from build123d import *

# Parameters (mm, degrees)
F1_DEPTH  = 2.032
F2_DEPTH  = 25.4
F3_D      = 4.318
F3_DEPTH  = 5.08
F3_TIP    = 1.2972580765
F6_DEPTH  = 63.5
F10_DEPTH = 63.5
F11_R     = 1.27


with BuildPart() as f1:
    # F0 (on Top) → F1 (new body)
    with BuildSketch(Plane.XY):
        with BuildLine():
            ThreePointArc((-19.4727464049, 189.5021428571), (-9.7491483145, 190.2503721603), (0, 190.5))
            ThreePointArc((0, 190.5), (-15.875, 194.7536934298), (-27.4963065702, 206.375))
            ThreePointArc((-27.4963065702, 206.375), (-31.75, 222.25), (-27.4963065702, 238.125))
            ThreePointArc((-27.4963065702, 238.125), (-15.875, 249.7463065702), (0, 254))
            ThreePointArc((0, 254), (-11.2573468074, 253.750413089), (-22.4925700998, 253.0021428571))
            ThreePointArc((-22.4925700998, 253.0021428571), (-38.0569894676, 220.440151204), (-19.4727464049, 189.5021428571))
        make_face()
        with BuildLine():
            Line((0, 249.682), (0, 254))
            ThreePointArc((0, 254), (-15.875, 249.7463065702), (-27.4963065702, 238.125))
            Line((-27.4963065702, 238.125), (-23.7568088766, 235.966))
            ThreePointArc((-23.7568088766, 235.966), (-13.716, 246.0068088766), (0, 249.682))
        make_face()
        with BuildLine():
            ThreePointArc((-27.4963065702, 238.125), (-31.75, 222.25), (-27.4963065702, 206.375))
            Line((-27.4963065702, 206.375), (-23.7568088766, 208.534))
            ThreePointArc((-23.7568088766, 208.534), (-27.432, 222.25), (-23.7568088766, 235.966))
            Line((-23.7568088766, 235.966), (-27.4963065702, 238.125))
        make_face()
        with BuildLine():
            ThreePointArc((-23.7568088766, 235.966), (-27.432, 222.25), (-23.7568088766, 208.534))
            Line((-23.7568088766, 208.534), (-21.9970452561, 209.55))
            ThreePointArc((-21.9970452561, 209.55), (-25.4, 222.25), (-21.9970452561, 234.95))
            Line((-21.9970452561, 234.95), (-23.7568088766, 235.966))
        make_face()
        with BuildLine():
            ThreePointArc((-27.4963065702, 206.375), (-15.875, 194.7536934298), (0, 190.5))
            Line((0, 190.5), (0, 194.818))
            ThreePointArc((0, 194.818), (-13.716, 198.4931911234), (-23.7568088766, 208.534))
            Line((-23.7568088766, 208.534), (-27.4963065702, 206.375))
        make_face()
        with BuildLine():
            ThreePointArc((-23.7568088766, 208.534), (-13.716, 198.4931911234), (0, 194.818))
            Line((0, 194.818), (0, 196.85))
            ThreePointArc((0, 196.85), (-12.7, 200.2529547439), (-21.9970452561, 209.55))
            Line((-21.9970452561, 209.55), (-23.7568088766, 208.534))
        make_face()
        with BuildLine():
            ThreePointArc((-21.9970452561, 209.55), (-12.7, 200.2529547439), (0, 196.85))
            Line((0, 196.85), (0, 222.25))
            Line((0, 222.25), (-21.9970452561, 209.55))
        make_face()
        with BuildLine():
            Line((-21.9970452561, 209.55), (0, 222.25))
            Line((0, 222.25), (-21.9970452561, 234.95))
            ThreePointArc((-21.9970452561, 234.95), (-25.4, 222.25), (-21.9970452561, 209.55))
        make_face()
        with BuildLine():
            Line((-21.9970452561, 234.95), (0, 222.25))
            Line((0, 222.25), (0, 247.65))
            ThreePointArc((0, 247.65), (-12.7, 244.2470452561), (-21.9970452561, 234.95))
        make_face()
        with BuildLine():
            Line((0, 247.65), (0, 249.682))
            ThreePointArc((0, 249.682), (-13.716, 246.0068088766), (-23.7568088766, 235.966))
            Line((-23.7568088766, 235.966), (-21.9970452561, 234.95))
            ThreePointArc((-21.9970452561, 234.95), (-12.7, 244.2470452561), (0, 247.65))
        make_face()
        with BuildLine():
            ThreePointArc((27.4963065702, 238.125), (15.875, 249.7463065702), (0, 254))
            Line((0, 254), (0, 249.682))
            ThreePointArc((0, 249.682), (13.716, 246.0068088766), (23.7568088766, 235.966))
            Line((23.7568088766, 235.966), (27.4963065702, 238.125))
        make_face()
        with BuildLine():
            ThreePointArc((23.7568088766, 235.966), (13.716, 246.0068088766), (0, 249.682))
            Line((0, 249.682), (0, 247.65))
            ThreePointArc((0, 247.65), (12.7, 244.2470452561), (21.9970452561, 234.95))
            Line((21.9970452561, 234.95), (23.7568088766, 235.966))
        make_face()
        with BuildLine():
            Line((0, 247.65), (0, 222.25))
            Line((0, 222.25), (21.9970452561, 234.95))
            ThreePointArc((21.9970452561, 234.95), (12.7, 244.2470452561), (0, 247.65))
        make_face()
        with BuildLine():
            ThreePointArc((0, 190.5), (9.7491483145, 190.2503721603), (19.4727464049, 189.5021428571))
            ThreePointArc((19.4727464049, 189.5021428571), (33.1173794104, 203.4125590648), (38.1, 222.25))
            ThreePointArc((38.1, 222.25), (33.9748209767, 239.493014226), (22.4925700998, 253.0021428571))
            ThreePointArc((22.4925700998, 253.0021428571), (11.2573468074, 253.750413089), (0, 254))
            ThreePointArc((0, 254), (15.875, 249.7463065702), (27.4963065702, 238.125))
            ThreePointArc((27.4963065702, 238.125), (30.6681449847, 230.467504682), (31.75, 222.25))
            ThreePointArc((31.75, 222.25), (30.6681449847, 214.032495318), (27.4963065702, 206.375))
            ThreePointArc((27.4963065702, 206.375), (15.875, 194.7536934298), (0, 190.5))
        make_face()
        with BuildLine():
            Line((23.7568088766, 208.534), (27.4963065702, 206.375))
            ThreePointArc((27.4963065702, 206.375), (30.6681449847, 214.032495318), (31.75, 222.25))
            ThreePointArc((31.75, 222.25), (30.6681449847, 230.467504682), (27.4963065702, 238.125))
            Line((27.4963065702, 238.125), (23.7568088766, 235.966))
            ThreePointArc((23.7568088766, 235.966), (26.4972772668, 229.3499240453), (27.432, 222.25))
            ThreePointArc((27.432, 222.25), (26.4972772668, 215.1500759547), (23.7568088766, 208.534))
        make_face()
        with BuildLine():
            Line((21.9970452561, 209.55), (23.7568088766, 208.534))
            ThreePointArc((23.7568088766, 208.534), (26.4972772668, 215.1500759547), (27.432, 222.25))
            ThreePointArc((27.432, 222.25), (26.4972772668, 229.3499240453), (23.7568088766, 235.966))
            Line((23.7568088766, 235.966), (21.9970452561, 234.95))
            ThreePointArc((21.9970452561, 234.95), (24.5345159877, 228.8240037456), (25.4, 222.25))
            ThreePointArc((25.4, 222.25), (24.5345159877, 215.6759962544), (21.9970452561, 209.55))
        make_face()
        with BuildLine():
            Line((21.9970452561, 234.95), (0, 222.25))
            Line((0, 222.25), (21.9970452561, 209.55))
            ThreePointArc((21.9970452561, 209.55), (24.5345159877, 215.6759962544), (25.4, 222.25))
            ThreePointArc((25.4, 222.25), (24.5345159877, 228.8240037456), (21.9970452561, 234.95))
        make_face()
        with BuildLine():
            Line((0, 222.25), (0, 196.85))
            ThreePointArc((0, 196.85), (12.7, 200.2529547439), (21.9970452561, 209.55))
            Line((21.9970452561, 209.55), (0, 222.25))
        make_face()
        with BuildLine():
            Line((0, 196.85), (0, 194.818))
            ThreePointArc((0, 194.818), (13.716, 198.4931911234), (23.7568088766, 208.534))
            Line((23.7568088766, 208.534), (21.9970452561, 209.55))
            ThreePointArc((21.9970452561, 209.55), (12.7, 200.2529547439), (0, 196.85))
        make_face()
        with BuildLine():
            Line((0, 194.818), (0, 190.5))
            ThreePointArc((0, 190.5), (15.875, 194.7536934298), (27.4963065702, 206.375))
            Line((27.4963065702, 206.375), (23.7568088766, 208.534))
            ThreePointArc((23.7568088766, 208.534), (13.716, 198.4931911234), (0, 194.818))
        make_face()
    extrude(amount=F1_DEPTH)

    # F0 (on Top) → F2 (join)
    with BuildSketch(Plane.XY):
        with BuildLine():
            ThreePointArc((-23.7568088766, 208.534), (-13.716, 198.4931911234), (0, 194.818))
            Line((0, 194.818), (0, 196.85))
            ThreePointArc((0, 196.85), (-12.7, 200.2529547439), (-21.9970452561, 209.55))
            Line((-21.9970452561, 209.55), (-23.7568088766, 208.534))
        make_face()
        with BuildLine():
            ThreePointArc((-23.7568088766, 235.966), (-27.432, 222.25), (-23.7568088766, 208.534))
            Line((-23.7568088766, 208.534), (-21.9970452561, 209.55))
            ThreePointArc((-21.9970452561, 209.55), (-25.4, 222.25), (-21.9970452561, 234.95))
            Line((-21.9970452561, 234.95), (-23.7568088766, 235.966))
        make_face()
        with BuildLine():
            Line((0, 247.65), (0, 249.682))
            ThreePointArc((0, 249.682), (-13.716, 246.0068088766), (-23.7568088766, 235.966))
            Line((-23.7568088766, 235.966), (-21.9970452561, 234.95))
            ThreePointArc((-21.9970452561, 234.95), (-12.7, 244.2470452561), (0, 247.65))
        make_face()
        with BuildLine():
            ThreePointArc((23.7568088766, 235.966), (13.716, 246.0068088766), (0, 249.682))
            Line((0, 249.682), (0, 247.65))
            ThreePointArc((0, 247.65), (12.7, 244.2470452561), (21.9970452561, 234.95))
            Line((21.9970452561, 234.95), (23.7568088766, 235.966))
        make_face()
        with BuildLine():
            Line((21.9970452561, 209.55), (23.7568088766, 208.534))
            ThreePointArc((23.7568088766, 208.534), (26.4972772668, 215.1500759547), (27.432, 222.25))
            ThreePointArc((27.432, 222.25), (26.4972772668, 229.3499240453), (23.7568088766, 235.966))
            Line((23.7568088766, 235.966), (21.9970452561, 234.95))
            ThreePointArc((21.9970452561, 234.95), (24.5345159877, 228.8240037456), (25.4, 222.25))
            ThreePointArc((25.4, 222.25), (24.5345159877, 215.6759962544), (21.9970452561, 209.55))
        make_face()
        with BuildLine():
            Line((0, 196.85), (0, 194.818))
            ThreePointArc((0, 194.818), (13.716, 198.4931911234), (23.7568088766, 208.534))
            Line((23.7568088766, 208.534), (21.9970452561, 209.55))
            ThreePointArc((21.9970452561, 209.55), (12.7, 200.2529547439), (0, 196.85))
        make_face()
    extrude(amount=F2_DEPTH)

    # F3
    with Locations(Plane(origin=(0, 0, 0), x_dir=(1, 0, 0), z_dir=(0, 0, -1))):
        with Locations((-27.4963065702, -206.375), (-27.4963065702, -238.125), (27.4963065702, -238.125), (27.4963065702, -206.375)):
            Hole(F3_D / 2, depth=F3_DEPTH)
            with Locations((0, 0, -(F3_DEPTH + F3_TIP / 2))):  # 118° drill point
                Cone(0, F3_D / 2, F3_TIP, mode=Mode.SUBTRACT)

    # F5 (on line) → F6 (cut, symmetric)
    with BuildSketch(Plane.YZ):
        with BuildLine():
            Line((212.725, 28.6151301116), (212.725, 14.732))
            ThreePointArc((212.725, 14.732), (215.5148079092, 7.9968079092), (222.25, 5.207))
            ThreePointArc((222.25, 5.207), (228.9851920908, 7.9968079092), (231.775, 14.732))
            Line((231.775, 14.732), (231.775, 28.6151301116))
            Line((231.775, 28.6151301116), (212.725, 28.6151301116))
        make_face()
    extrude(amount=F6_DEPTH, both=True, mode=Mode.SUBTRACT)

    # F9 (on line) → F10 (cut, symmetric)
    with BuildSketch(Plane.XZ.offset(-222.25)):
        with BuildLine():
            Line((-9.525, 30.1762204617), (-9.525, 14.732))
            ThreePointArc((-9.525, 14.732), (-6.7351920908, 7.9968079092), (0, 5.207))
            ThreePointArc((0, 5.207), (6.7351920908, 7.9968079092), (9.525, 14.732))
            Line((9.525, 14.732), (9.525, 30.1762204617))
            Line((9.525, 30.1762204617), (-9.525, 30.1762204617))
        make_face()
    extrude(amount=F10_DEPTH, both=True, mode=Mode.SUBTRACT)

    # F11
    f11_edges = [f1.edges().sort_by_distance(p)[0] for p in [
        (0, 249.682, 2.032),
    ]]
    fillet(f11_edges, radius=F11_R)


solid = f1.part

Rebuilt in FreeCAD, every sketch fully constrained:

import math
import FreeCAD as App
import Part
import Sketcher

V = App.Vector
Q = App.Units.Quantity


def edges_at(feature, points):
    """Names of the edges that pass closest to the given points."""
    edges = feature.Shape.Edges
    near = lambda p: min(range(len(edges)), key=lambda i: edges[i].distToShape(Part.Vertex(*p))[0])
    return sorted({f"Edge{near(p) + 1}" for p in points})

doc = App.newDocument("Part")
body = doc.addObject("PartDesign::Body", "Body")

sketch1 = body.newObject("Sketcher::SketchObject", "Sketch")
sketch1.AttachmentSupport = (doc.getObject("XY_Plane"), [""])
sketch1.MapMode = "FlatFace"
sketch1.addGeometry([
    Part.ArcOfCircle(Part.Circle(V(0, 0, 0), V(0, 0, 1), 190.5), math.radians(90), math.radians(95.866973)),
    Part.ArcOfCircle(Part.Circle(V(0, 0, 0), V(0, 0, 1), 190.5), math.radians(84.133027), math.radians(90)),
    Part.ArcOfCircle(Part.Circle(V(0, 222.25, 0), V(0, 0, 1), 38.1), math.radians(-59.263158), math.radians(0)),
    Part.ArcOfCircle(Part.Circle(V(0, 222.25, 0), V(0, 0, 1), 38.1), math.radians(0), math.radians(53.817713)),
    Part.ArcOfCircle(Part.Circle(V(0, 0, 0), V(0, 0, 1), 254), math.radians(84.919608), math.radians(90)),
    Part.ArcOfCircle(Part.Circle(V(0, 0, 0), V(0, 0, 1), 254), math.radians(90), math.radians(95.080392)),
    Part.ArcOfCircle(Part.Circle(V(0, 222.25, 0), V(0, 0, 1), 38.1), math.radians(126.182287), math.radians(239.263158)),
], False)
sketch1.addConstraint([
    Sketcher.Constraint("Tangent", 0, 1, 1, 2),
    Sketcher.Constraint("Coincident", 1, 1, 2, 1),
    Sketcher.Constraint("Tangent", 2, 2, 3, 1),
    Sketcher.Constraint("Coincident", 3, 2, 4, 1),
    Sketcher.Constraint("Tangent", 4, 2, 5, 1),
    Sketcher.Constraint("Coincident", 5, 2, 6, 1),
    Sketcher.Constraint("Coincident", 6, 2, 0, 2),
    Sketcher.Constraint("Coincident", 0, 3, -1, 1),
    Sketcher.Constraint("Coincident", 4, 3, -1, 1),
    Sketcher.Constraint("Coincident", 6, 3, 2, 3),
    Sketcher.Constraint("Equal", 0, 1),
    Sketcher.Constraint("Equal", 2, 3),
    Sketcher.Constraint("Equal", 4, 5),
    Sketcher.Constraint("Equal", 3, 6),
    Sketcher.Constraint("PointOnObject", 2, 3, -2),
    Sketcher.Constraint("PointOnObject", 0, 1, -2),
    Sketcher.Constraint("PointOnObject", 4, 2, -2),
    Sketcher.Constraint("Horizontal", 6, 3, 2, 2),
    Sketcher.Constraint("Radius", 4, Q("10 in")),
    Sketcher.Constraint("Radius", 0, Q("7.5 in")),
    Sketcher.Constraint("Radius", 2, Q("1.5 in")),
    Sketcher.Constraint("DistanceY", 1, 1, 3, 2, Q("2.5 in")),
])
pad1 = body.newObject("PartDesign::Pad", "Pad")
pad1.Profile = sketch1
pad1.Length = Q("0.08 in")

sketch2 = body.newObject("Sketcher::SketchObject", "Sketch001")
sketch2.AttachmentSupport = (doc.getObject("XY_Plane"), [""])
sketch2.MapMode = "FlatFace"
sketch2.addGeometry([
    Part.ArcOfCircle(Part.Circle(V(0, 222.25, 0), V(0, 0, 1), 27.432), math.radians(-150), math.radians(-90)),
    Part.ArcOfCircle(Part.Circle(V(0, 222.25, 0), V(0, 0, 1), 27.432), math.radians(-90), math.radians(-30)),
    Part.ArcOfCircle(Part.Circle(V(0, 222.25, 0), V(0, 0, 1), 27.432), math.radians(-30), math.radians(0)),
    Part.ArcOfCircle(Part.Circle(V(0, 222.25, 0), V(0, 0, 1), 27.432), math.radians(0), math.radians(30)),
    Part.ArcOfCircle(Part.Circle(V(0, 222.25, 0), V(0, 0, 1), 27.432), math.radians(30), math.radians(90)),
    Part.ArcOfCircle(Part.Circle(V(0, 222.25, 0), V(0, 0, 1), 27.432), math.radians(90), math.radians(150)),
    Part.ArcOfCircle(Part.Circle(V(0, 222.25, 0), V(0, 0, 1), 27.432), math.radians(150), math.radians(210)),
    Part.ArcOfCircle(Part.Circle(V(0, 222.25, 0), V(0, 0, 1), 25.4), math.radians(-150), math.radians(-90)),
    Part.ArcOfCircle(Part.Circle(V(0, 222.25, 0), V(0, 0, 1), 25.4), math.radians(150), math.radians(210)),
    Part.ArcOfCircle(Part.Circle(V(0, 222.25, 0), V(0, 0, 1), 25.4), math.radians(90), math.radians(150)),
    Part.ArcOfCircle(Part.Circle(V(0, 222.25, 0), V(0, 0, 1), 25.4), math.radians(30), math.radians(90)),
    Part.ArcOfCircle(Part.Circle(V(0, 222.25, 0), V(0, 0, 1), 25.4), math.radians(0), math.radians(30)),
    Part.ArcOfCircle(Part.Circle(V(0, 222.25, 0), V(0, 0, 1), 25.4), math.radians(-30), math.radians(0)),
    Part.ArcOfCircle(Part.Circle(V(0, 222.25, 0), V(0, 0, 1), 25.4), math.radians(-90), math.radians(-30)),
], False)
sketch2.addConstraint([
    Sketcher.Constraint("Tangent", 0, 2, 1, 1),
    Sketcher.Constraint("Tangent", 1, 2, 2, 1),
    Sketcher.Constraint("Tangent", 2, 2, 3, 1),
    Sketcher.Constraint("Tangent", 3, 2, 4, 1),
    Sketcher.Constraint("Tangent", 4, 2, 5, 1),
    Sketcher.Constraint("Tangent", 5, 2, 6, 1),
    Sketcher.Constraint("Tangent", 6, 2, 0, 1),
    Sketcher.Constraint("Tangent", 7, 1, 8, 2),
    Sketcher.Constraint("Tangent", 8, 1, 9, 2),
    Sketcher.Constraint("Tangent", 9, 1, 10, 2),
    Sketcher.Constraint("Tangent", 10, 1, 11, 2),
    Sketcher.Constraint("Tangent", 11, 1, 12, 2),
    Sketcher.Constraint("Tangent", 12, 1, 13, 2),
    Sketcher.Constraint("Tangent", 13, 1, 7, 2),
    Sketcher.Constraint("Coincident", 2, 3, 0, 3),
    Sketcher.Constraint("Coincident", 4, 3, 0, 3),
    Sketcher.Constraint("Coincident", 7, 3, 0, 3),
    Sketcher.Constraint("Coincident", 9, 3, 0, 3),
    Sketcher.Constraint("Coincident", 11, 3, 0, 3),
    Sketcher.Constraint("Symmetric", 3, 2, 5, 2, -2),
    Sketcher.Constraint("PointOnObject", 0, 2, -2),
    Sketcher.Constraint("PointOnObject", 4, 2, -2),
    Sketcher.Constraint("PointOnObject", 9, 1, -2),
    Sketcher.Constraint("PointOnObject", 13, 1, -2),
    Sketcher.Constraint("Horizontal", 13, 3, 2, 2),
    Sketcher.Constraint("Horizontal", 1, 2, 6, 2),
    Sketcher.Constraint("Horizontal", 8, 1, 10, 1),
    Sketcher.Constraint("Horizontal", 2, 2, 11, 1),
    Sketcher.Constraint("Horizontal", 7, 1, 12, 1),
    Sketcher.Constraint("Vertical", 1, 2, 3, 2),
    Sketcher.Constraint("Vertical", 7, 1, 8, 1),
    Sketcher.Constraint("Radius", 7, Q("1 in")),
    Sketcher.Constraint("Radius", 0, Q("1.08 in")),
    Sketcher.Constraint("DistanceY", 7, 1, 11, 3, Q("0.5 in")),
    Sketcher.Constraint("DistanceY", -1, 1, 0, 3, Q("8.75 in")),
    Sketcher.Constraint("DistanceY", -1, 1, 1, 2, Q("8.21 in")),
])
pad2 = body.newObject("PartDesign::Pad", "Pad001")
pad2.Profile = sketch2
pad2.Length = Q("1 in")

sketch3 = body.newObject("Sketcher::SketchObject", "Sketch002")
sketch3.AttachmentSupport = (doc.getObject("XY_Plane"), [""])
sketch3.MapMode = "FlatFace"
sketch3.addGeometry([
    Part.Circle(V(-27.496307, 206.375, 0), V(0, 0, 1), 2.159),
    Part.Circle(V(-27.496307, 238.125, 0), V(0, 0, 1), 2.159),
    Part.Circle(V(27.496307, 238.125, 0), V(0, 0, 1), 2.159),
    Part.Circle(V(27.496307, 206.375, 0), V(0, 0, 1), 2.159),
], False)
sketch3.addConstraint([
    Sketcher.Constraint("Equal", 0, 1),
    Sketcher.Constraint("Equal", 1, 2),
    Sketcher.Constraint("Equal", 2, 3),
    Sketcher.Constraint("Symmetric", 1, 3, 2, 3, -2),
    Sketcher.Constraint("Symmetric", 0, 3, 3, 3, -2),
    Sketcher.Constraint("Vertical", 0, 3, 1, 3),
    Sketcher.Constraint("Diameter", 0, Q("0.17 in")),
    Sketcher.Constraint("DistanceY", 0, 3, 1, 3, Q("1.25 in")),
    Sketcher.Constraint("DistanceY", -1, 1, 0, 3, Q("8.125 in")),
    Sketcher.Constraint("DistanceX", 0, 3, -1, 1, 27.496307),
])
doc.recompute()
hole = body.newObject("PartDesign::Hole", "Hole")
hole.Profile = sketch3
hole.ThreadType = "None"
hole.Diameter = Q("0.17 in")
hole.DepthType = "Dimension"
hole.Depth = Q("0.2 in")
hole.DrillPoint = "Angled"
hole.DrillPointAngle = 118
hole.Reversed = True

sketch4 = body.newObject("Sketcher::SketchObject", "Sketch003")
sketch4.AttachmentSupport = (doc.getObject("YZ_Plane"), [""])
sketch4.MapMode = "FlatFace"
sketch4.addGeometry([
    Part.LineSegment(V(212.725, 28.61513, 0), V(212.725, 14.732, 0)),
    Part.ArcOfCircle(Part.Circle(V(222.25, 14.732, 0), V(0, 0, 1), 9.525), math.radians(180), math.radians(270)),
    Part.ArcOfCircle(Part.Circle(V(222.25, 14.732, 0), V(0, 0, 1), 9.525), math.radians(-90), math.radians(0)),
    Part.LineSegment(V(231.775, 14.732, 0), V(231.775, 28.61513, 0)),
    Part.LineSegment(V(231.775, 28.61513, 0), V(212.725, 28.61513, 0)),
], False)
sketch4.addConstraint([
    Sketcher.Constraint("Tangent", 0, 2, 1, 1),
    Sketcher.Constraint("Tangent", 1, 2, 2, 1),
    Sketcher.Constraint("Tangent", 2, 2, 3, 1),
    Sketcher.Constraint("Coincident", 3, 2, 4, 1),
    Sketcher.Constraint("Coincident", 4, 2, 0, 1),
    Sketcher.Constraint("Vertical", 0),
    Sketcher.Constraint("Vertical", 3),
    Sketcher.Constraint("Horizontal", 4),
    Sketcher.Constraint("Equal", 1, 2),
    Sketcher.Constraint("Vertical", 2, 3, 1, 2),
    Sketcher.Constraint("Radius", 1, Q("0.375 in")),
    Sketcher.Constraint("DistanceX", -1, 1, 1, 3, Q("8.75 in")),
    Sketcher.Constraint("DistanceY", -1, 1, 1, 3, Q("0.58 in")),
    Sketcher.Constraint("DistanceY", 0, 2, 0, 1, 13.88313),
])
pocket1 = body.newObject("PartDesign::Pocket", "Pocket")
pocket1.Profile = sketch4
pocket1.Length = Q("5 in")
pocket1.Midplane = True

sketch5 = body.newObject("Sketcher::SketchObject", "Sketch004")
sketch5.AttachmentSupport = (doc.getObject("XZ_Plane"), [""])
sketch5.MapMode = "FlatFace"
sketch5.AttachmentOffset = App.Placement(V(0, 0, -8.75 * 25.4), App.Rotation())
sketch5.addGeometry([
    Part.LineSegment(V(-9.525, 30.17622, 0), V(-9.525, 14.732, 0)),
    Part.ArcOfCircle(Part.Circle(V(0, 14.732, 0), V(0, 0, 1), 9.525), math.radians(180), math.radians(270)),
    Part.ArcOfCircle(Part.Circle(V(0, 14.732, 0), V(0, 0, 1), 9.525), math.radians(-90), math.radians(0)),
    Part.LineSegment(V(9.525, 14.732, 0), V(9.525, 30.17622, 0)),
    Part.LineSegment(V(9.525, 30.17622, 0), V(-9.525, 30.17622, 0)),
], False)
sketch5.addConstraint([
    Sketcher.Constraint("Tangent", 0, 2, 1, 1),
    Sketcher.Constraint("Tangent", 1, 2, 2, 1),
    Sketcher.Constraint("Tangent", 2, 2, 3, 1),
    Sketcher.Constraint("Coincident", 3, 2, 4, 1),
    Sketcher.Constraint("Coincident", 4, 2, 0, 1),
    Sketcher.Constraint("Vertical", 0),
    Sketcher.Constraint("Vertical", 3),
    Sketcher.Constraint("Horizontal", 4),
    Sketcher.Constraint("Equal", 1, 2),
    Sketcher.Constraint("PointOnObject", 1, 3, -2),
    Sketcher.Constraint("PointOnObject", 1, 2, -2),
    Sketcher.Constraint("Radius", 1, Q("0.375 in")),
    Sketcher.Constraint("DistanceY", -1, 1, 1, 3, Q("0.58 in")),
    Sketcher.Constraint("DistanceY", 0, 2, 0, 1, 15.44422),
])
pocket2 = body.newObject("PartDesign::Pocket", "Pocket001")
pocket2.Profile = sketch5
pocket2.Length = Q("5 in")
pocket2.Midplane = True
doc.recompute()

fillet = body.newObject("PartDesign::Fillet", "Fillet")
fillet.Base = (pocket2, edges_at(pocket2, [(13.716, 246.007, 2.032)]))
fillet.Radius = Q("0.05 in")

doc.recompute()
